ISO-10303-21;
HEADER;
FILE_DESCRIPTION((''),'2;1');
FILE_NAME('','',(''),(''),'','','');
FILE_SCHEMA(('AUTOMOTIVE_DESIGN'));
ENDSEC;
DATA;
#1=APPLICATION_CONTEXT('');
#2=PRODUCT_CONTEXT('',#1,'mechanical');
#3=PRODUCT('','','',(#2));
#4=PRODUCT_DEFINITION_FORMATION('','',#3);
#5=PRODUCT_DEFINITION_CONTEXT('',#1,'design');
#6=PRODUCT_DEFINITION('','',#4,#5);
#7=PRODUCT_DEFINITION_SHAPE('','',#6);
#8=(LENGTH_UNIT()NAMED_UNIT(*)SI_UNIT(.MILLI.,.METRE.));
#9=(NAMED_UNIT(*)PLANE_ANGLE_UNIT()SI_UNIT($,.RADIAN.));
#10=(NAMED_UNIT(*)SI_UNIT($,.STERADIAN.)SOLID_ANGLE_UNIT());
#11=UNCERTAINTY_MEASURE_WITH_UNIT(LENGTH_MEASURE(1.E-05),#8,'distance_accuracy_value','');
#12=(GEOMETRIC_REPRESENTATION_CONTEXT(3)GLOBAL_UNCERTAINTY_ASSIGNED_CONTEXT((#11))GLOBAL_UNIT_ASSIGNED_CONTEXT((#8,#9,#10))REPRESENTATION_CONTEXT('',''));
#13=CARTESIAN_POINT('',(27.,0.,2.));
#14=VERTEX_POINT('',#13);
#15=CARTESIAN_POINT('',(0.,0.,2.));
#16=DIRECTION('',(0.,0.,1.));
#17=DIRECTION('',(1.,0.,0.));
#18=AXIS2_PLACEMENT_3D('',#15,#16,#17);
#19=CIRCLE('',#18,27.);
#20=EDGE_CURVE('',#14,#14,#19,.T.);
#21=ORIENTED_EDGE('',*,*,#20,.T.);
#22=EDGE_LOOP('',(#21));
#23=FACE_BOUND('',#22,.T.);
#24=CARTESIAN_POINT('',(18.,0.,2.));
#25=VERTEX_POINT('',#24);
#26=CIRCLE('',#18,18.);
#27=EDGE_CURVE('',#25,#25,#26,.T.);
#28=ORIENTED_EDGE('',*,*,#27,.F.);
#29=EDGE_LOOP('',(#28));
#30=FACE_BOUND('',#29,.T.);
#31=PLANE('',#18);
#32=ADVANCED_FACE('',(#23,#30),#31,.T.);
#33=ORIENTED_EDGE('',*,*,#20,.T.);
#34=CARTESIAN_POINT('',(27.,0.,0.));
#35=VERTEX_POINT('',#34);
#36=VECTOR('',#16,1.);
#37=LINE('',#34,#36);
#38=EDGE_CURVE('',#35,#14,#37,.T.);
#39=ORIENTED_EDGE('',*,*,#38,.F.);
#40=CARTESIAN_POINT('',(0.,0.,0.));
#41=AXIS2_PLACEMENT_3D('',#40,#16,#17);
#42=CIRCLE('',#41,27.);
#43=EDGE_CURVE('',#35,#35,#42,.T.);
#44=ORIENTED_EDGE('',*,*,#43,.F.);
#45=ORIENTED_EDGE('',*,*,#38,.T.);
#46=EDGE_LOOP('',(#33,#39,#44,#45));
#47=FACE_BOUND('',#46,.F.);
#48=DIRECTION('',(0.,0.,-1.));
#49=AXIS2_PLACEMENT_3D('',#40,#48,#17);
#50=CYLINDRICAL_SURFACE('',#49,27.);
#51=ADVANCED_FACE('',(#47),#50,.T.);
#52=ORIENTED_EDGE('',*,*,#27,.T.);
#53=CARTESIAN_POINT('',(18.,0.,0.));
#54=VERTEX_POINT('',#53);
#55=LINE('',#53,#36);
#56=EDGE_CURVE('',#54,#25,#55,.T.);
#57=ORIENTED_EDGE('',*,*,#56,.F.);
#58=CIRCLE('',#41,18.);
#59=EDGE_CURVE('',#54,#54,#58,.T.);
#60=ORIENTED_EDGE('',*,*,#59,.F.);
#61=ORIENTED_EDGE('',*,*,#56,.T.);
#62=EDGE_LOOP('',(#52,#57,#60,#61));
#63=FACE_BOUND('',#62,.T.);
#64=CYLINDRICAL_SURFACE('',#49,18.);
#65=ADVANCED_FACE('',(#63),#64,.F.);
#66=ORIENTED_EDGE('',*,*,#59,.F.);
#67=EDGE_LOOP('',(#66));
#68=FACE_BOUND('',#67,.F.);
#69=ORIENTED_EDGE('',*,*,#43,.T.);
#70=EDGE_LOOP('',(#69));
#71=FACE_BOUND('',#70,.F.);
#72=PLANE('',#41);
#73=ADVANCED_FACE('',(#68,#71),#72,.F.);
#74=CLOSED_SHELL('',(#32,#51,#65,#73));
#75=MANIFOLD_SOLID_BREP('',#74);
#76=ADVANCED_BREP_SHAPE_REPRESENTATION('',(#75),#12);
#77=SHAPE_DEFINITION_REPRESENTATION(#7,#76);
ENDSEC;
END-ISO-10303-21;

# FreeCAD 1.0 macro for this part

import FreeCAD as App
import Part
import Sketcher
from FreeCAD import Vector
Q = App.Units.Quantity

doc = App.newDocument("Part")
body = doc.addObject("PartDesign::Body", "Body")

sketch1 = doc.addObject("Sketcher::SketchObject", "Sketch")
body.addObject(sketch1)
sketch1.AttachmentSupport = (doc.XY_Plane, [""])
sketch1.MapMode = "FlatFace"
sketch1.addGeometry(Part.Circle(Vector(0, 0, 0), Vector(0, 0, 1), 27), False)
sketch1.addGeometry(Part.Circle(Vector(0, 0, 0), Vector(0, 0, 1), 18), False)
sketch1.addConstraint(Sketcher.Constraint("Coincident", 0, 3, -1, 1))
sketch1.addConstraint(Sketcher.Constraint("Coincident", 1, 3, -1, 1))
sketch1.addConstraint(Sketcher.Constraint("Diameter", 0, Q("54 mm")))
sketch1.addConstraint(Sketcher.Constraint("Diameter", 1, Q("36 mm")))
pad1 = doc.addObject("PartDesign::Pad", "Pad")
body.addObject(pad1)
pad1.Profile = sketch1
pad1.Length = 2

doc.recompute()
